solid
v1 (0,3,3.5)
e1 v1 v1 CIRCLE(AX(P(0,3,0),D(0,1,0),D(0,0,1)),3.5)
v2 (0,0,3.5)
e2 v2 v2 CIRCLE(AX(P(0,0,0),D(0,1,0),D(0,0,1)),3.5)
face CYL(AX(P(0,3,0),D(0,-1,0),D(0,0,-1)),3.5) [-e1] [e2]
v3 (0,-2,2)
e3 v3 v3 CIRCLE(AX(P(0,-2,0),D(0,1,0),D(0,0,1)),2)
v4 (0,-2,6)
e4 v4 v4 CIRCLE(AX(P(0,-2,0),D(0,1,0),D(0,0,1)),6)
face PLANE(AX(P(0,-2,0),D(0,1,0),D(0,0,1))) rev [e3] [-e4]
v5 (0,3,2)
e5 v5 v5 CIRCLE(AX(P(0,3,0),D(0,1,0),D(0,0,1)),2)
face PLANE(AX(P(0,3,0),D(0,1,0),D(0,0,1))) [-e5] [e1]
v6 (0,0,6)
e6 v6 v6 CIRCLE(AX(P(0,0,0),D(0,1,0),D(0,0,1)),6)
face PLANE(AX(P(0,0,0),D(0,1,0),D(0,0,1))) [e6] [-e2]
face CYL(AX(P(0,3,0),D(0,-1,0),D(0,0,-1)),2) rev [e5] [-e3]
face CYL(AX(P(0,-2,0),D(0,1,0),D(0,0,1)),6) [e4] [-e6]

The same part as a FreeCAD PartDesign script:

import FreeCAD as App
import Part
import Sketcher
Q = App.Units.Quantity

doc = App.newDocument("Part")
body = doc.addObject("PartDesign::Body", "Body")

# Sketch on XZ plane
sketch1 = body.newObject("Sketcher::SketchObject", "Sketch")
sketch1.AttachmentSupport = (doc.getObject("XZ_Plane"), [""])
sketch1.MapMode = "FlatFace"
sketch1.addGeometry([
    Part.Circle(App.Vector(0, 0, 0), App.Vector(0, 0, 1), 3.5),
    Part.Circle(App.Vector(0, 0, 0), App.Vector(0, 0, 1), 2),
], False)
sketch1.addConstraint([
    Sketcher.Constraint("Coincident", 0, 3, -1, 1),
    Sketcher.Constraint("Coincident", 1, 3, -1, 1),
    Sketcher.Constraint("Diameter", 0, Q("7 mm")),
    Sketcher.Constraint("Diameter", 1, Q("4 mm")),
])
pad1 = body.newObject("PartDesign::Pad", "Pad")
pad1.Profile = sketch1
pad1.Length = 3
pad1.Reversed = True

# Sketch on XZ plane
sketch2 = body.newObject("Sketcher::SketchObject", "Sketch001")
sketch2.AttachmentSupport = (doc.getObject("XZ_Plane"), [""])
sketch2.MapMode = "FlatFace"
sketch2.addGeometry([
    Part.Circle(App.Vector(0, 0, 0), App.Vector(0, 0, 1), 6),
    Part.Circle(App.Vector(0, 0, 0), App.Vector(0, 0, 1), 2),
], False)
sketch2.addConstraint([
    Sketcher.Constraint("Coincident", 0, 3, -1, 1),
    Sketcher.Constraint("Coincident", 1, 3, -1, 1),
    Sketcher.Constraint("Diameter", 0, Q("12 mm")),
    Sketcher.Constraint("Diameter", 1, Q("4 mm")),
])
pad2 = body.newObject("PartDesign::Pad", "Pad001")
pad2.Profile = sketch2
pad2.Length = 2

doc.recompute()
